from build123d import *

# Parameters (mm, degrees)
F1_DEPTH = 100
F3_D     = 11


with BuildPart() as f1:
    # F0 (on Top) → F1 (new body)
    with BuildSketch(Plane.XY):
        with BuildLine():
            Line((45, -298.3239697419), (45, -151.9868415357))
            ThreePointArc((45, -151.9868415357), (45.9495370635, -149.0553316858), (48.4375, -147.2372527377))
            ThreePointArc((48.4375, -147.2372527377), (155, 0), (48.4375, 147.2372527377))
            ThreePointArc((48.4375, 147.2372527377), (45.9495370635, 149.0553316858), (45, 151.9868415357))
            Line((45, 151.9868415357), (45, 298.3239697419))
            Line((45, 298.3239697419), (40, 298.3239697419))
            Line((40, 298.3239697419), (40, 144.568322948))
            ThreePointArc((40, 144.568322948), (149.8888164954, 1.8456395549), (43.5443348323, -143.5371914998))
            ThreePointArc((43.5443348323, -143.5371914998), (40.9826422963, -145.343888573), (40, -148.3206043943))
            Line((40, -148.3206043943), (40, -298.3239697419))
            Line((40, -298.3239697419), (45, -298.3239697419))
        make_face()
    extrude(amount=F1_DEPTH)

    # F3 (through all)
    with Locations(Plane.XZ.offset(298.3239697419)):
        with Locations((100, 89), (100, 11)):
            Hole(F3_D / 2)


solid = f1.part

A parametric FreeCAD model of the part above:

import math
import FreeCAD as App
import Part
import Sketcher
Q = App.Units.Quantity

doc = App.newDocument("Part")
params = doc.addObject("Spreadsheet::Sheet", "Params")
for row, (alias, value) in enumerate([
    ("sketch1_radius", "5 mm"),
    ("sketch1_radius2", "155 mm"),
    ("pad1_length", "100 mm"),
    ("sketch2_diameter", "11 mm"),
    ("hole_diameter", "11 mm"),
], start=1):
    params.set(f"A{row}", alias)
    params.set(f"B{row}", "=" + value)
    params.setAlias(f"B{row}", alias)

body = doc.addObject("PartDesign::Body", "Body")

# Sketch on XY plane
sketch1 = doc.addObject("Sketcher::SketchObject", "Sketch")
body.addObject(sketch1)
sketch1.AttachmentSupport = (doc.XY_Plane, [""])
sketch1.MapMode = "FlatFace"
sketch1.addGeometry([
    Part.LineSegment(App.Vector(45, -298, 0), App.Vector(45, -152, 0)),  # 0
    Part.ArcOfCircle(Part.Circle(App.Vector(50, -152, 0), App.Vector(0, 0, 1), 5), math.radians(108), math.radians(180)),  # 1
    Part.ArcOfCircle(Part.Circle(App.Vector(0, 0, 0), App.Vector(0, 0, 1), 155), math.radians(-72), math.radians(72)),  # 2
    Part.ArcOfCircle(Part.Circle(App.Vector(50, 152, 0), App.Vector(0, 0, 1), 5), math.radians(180), math.radians(252)),  # 3
    Part.LineSegment(App.Vector(45, 152, 0), App.Vector(45, 298, 0)),  # 4
    Part.LineSegment(App.Vector(45, 298, 0), App.Vector(40, 298, 0)),  # 5
    Part.LineSegment(App.Vector(40, 298, 0), App.Vector(40, 145, 0)),  # 6
    Part.ArcOfCircle(Part.Circle(App.Vector(0, 0, 0), App.Vector(0, 0, 1), 150), math.radians(-73), math.radians(74)),  # 7
    Part.ArcOfCircle(Part.Circle(App.Vector(45, -148, 0), App.Vector(0, 0, 1), 5), math.radians(107), math.radians(180)),  # 8
    Part.LineSegment(App.Vector(40, -148, 0), App.Vector(40, -298, 0)),  # 9
    Part.LineSegment(App.Vector(40, -298, 0), App.Vector(45, -298, 0)),  # 10
], False)
sketch1.addConstraint([
    Sketcher.Constraint("Tangent", 0, 2, 1, 2),
    Sketcher.Constraint("Tangent", 1, 1, 2, 1),
    Sketcher.Constraint("Tangent", 2, 2, 3, 2),
    Sketcher.Constraint("Tangent", 3, 1, 4, 1),
    Sketcher.Constraint("Coincident", 4, 2, 5, 1),
    Sketcher.Constraint("Coincident", 5, 2, 6, 1),
    Sketcher.Constraint("Coincident", 6, 2, 7, 2),
    Sketcher.Constraint("Tangent", 7, 1, 8, 1),
    Sketcher.Constraint("Tangent", 8, 2, 9, 1),
    Sketcher.Constraint("Coincident", 9, 2, 10, 1),
    Sketcher.Constraint("Coincident", 10, 2, 0, 1),
    Sketcher.Constraint("Vertical", 0),
    Sketcher.Constraint("Vertical", 4),
    Sketcher.Constraint("Horizontal", 5),
    Sketcher.Constraint("Vertical", 6),
    Sketcher.Constraint("Vertical", 9),
    Sketcher.Constraint("Horizontal", 10),
    Sketcher.Constraint("Coincident", 2, 3, -1, 1),
    Sketcher.Constraint("Equal", 1, 3),
    Sketcher.Constraint("Equal", 3, 8),
    Sketcher.Constraint("Symmetric", 5, 2, 9, 2, -1),
    Sketcher.Constraint("PointOnObject", 7, 3, -1),
    Sketcher.Constraint("Vertical", 1, 3, 3, 3),
    Sketcher.Constraint("Vertical", 8, 3, 0, 2),
    Sketcher.Constraint("Radius", 1, Q("5 mm")),
    Sketcher.Constraint("Radius", 2, Q("155 mm")),
    Sketcher.Constraint("DistanceX", -1, 1, 1, 3, Q("50 mm")),
    Sketcher.Constraint("Radius", 7, Q("150.036381 mm")),
    Sketcher.Constraint("DistanceY", 0, 1, 0, 2, Q("146.337128 mm")),
    Sketcher.Constraint("DistanceY", 6, 2, 6, 1, Q("153.755647 mm")),
])
sketch1.setExpression("Constraints[24]", "Params.sketch1_radius")
sketch1.setExpression("Constraints[25]", "Params.sketch1_radius2")
pad1 = doc.addObject("PartDesign::Pad", "Pad")
body.addObject(pad1)
pad1.Profile = sketch1
pad1.setExpression("Length", "Params.pad1_length")

# Sketch on XZ plane
sketch2 = doc.addObject("Sketcher::SketchObject", "Sketch001")
body.addObject(sketch2)
sketch2.AttachmentSupport = (doc.XZ_Plane, [""])
sketch2.MapMode = "FlatFace"
sketch2.AttachmentOffset = App.Placement(App.Vector(0, 0, 298.32397), App.Rotation())
sketch2.addGeometry([
    Part.Circle(App.Vector(100, 89, 0), App.Vector(0, 0, 1), 6),
    Part.Circle(App.Vector(100, 11, 0), App.Vector(0, 0, 1), 6),
], False)
sketch2.addConstraint([
    Sketcher.Constraint("Equal", 0, 1),
    Sketcher.Constraint("Vertical", 0, 3, 1, 3),
    Sketcher.Constraint("Diameter", 0, Q("11 mm")),
    Sketcher.Constraint("DistanceX", -1, 1, 0, 3, Q("100 mm")),
    Sketcher.Constraint("DistanceY", -1, 1, 0, 3, Q("89 mm")),
    Sketcher.Constraint("DistanceY", -1, 1, 1, 3, Q("11 mm")),
])
sketch2.setExpression("Constraints[2]", "Params.sketch2_diameter")
doc.recompute()
hole = doc.addObject("PartDesign::Hole", "Hole")
body.addObject(hole)
hole.Profile = sketch2
hole.ThreadType = "None"
hole.setExpression("Diameter", "Params.hole_diameter")
hole.DepthType = "ThroughAll"

doc.recompute()
